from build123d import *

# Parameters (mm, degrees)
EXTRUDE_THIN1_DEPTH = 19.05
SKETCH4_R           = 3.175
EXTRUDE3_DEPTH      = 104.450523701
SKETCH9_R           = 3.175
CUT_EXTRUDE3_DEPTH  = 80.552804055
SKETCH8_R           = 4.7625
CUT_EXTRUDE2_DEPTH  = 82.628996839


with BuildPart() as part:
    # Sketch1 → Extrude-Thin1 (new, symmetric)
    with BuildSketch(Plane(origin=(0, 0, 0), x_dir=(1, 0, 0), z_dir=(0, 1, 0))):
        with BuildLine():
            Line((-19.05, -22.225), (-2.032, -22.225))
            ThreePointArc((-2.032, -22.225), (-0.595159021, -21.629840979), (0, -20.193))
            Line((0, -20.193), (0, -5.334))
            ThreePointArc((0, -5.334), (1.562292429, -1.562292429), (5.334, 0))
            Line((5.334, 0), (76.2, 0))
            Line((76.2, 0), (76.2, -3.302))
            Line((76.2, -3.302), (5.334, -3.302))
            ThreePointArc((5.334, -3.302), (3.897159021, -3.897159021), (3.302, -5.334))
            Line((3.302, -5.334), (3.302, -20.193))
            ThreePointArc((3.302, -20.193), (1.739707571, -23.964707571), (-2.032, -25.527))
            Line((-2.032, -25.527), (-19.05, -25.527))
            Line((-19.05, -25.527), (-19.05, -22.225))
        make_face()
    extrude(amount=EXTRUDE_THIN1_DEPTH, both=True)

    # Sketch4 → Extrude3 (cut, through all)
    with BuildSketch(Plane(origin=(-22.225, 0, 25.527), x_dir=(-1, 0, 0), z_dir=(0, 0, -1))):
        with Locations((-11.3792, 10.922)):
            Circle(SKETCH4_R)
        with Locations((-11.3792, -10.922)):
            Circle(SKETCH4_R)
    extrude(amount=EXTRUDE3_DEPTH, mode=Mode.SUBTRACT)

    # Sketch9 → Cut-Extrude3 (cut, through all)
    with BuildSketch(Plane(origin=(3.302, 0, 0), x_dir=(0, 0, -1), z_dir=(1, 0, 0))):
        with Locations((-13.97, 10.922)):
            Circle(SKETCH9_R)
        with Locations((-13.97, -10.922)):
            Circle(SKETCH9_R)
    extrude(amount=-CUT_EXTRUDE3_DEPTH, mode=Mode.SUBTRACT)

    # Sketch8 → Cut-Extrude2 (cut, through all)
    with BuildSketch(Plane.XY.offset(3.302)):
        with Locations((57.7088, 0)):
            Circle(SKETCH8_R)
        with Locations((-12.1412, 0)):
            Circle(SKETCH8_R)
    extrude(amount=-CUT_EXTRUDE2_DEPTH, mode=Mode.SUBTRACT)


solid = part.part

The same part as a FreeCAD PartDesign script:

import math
import FreeCAD as App
import Part
import Sketcher
Q = App.Units.Quantity

doc = App.newDocument("Part")
body = doc.addObject("PartDesign::Body", "Body")

# Sketch on XZ plane
sketch1 = doc.addObject("Sketcher::SketchObject", "Sketch")
body.addObject(sketch1)
sketch1.AttachmentSupport = (doc.XZ_Plane, [""])
sketch1.MapMode = "FlatFace"
sketch1.addGeometry(Part.LineSegment(App.Vector(-2, 22.2, 0), App.Vector(-19.1, 22.2, 0)), False)
sketch1.addGeometry(Part.LineSegment(App.Vector(-19.1, 22.2, 0), App.Vector(-19.1, 25.5, 0)), False)
sketch1.addGeometry(Part.LineSegment(App.Vector(-19.1, 25.5, 0), App.Vector(-2, 25.5, 0)), False)
sketch1.addGeometry(Part.ArcOfCircle(Part.Circle(App.Vector(-2, 20.2, 0), App.Vector(0, 0, 1), 5.3), math.radians(0), math.radians(90)), False)
sketch1.addGeometry(Part.LineSegment(App.Vector(3.3, 20.2, 0), App.Vector(3.3, 5.3, 0)), False)
sketch1.addGeometry(Part.ArcOfCircle(Part.Circle(App.Vector(5.3, 5.3, 0), App.Vector(0, 0, 1), 2), math.radians(-180), math.radians(-90)), False)
sketch1.addGeometry(Part.LineSegment(App.Vector(5.3, 3.3, 0), App.Vector(76.2, 3.3, 0)), False)
sketch1.addGeometry(Part.LineSegment(App.Vector(76.2, 3.3, 0), App.Vector(76.2, 0, 0)), False)
sketch1.addGeometry(Part.LineSegment(App.Vector(76.2, 0, 0), App.Vector(5.3, 0, 0)), False)
sketch1.addGeometry(Part.ArcOfCircle(Part.Circle(App.Vector(5.3, 5.3, 0), App.Vector(0, 0, 1), 5.3), math.radians(180), math.radians(270)), False)
sketch1.addGeometry(Part.LineSegment(App.Vector(0, 5.3, 0), App.Vector(0, 20.2, 0)), False)
sketch1.addGeometry(Part.ArcOfCircle(Part.Circle(App.Vector(-2, 20.2, 0), App.Vector(0, 0, 1), 2), math.radians(0), math.radians(90)), False)
sketch1.addConstraint(Sketcher.Constraint("Coincident", 0, 2, 1, 1))
sketch1.addConstraint(Sketcher.Constraint("Coincident", 1, 2, 2, 1))
sketch1.addConstraint(Sketcher.Constraint("Tangent", 2, 2, 3, 2))
sketch1.addConstraint(Sketcher.Constraint("Tangent", 3, 1, 4, 1))
sketch1.addConstraint(Sketcher.Constraint("Tangent", 4, 2, 5, 1))
sketch1.addConstraint(Sketcher.Constraint("Tangent", 5, 2, 6, 1))
sketch1.addConstraint(Sketcher.Constraint("Coincident", 6, 2, 7, 1))
sketch1.addConstraint(Sketcher.Constraint("Coincident", 7, 2, 8, 1))
sketch1.addConstraint(Sketcher.Constraint("Tangent", 8, 2, 9, 2))
sketch1.addConstraint(Sketcher.Constraint("Tangent", 9, 1, 10, 1))
sketch1.addConstraint(Sketcher.Constraint("Tangent", 10, 2, 11, 1))
sketch1.addConstraint(Sketcher.Constraint("Tangent", 11, 2, 0, 1))
sketch1.addConstraint(Sketcher.Constraint("Horizontal", 0))
sketch1.addConstraint(Sketcher.Constraint("Vertical", 1))
sketch1.addConstraint(Sketcher.Constraint("Horizontal", 2))
sketch1.addConstraint(Sketcher.Constraint("Vertical", 4))
sketch1.addConstraint(Sketcher.Constraint("Horizontal", 6))
sketch1.addConstraint(Sketcher.Constraint("Vertical", 7))
sketch1.addConstraint(Sketcher.Constraint("Horizontal", 8))
sketch1.addConstraint(Sketcher.Constraint("Vertical", 10))
sketch1.addConstraint(Sketcher.Constraint("Coincident", 9, 3, 5, 3))
sketch1.addConstraint(Sketcher.Constraint("Coincident", 11, 3, 3, 3))
sketch1.addConstraint(Sketcher.Constraint("Equal", 3, 9))
sketch1.addConstraint(Sketcher.Constraint("PointOnObject", 7, 2, -1))
sketch1.addConstraint(Sketcher.Constraint("PointOnObject", 9, 1, -2))
sketch1.addConstraint(Sketcher.Constraint("Radius", 3, Q("0.21 in")))
sketch1.addConstraint(Sketcher.Constraint("Radius", 5, Q("0.08 in")))
sketch1.addConstraint(Sketcher.Constraint("DistanceX", -1, 1, 6, 2, Q("3 in")))
sketch1.addConstraint(Sketcher.Constraint("DistanceX", 0, 2, 0, 1, Q("0.67 in")))
sketch1.addConstraint(Sketcher.Constraint("DistanceY", 4, 2, 4, 1, Q("0.585 in")))
pad1 = doc.addObject("PartDesign::Pad", "Pad")
body.addObject(pad1)
pad1.Profile = sketch1
pad1.Length = Q("1.5 in")
pad1.Midplane = True

# Sketch on XY plane
sketch2 = doc.addObject("Sketcher::SketchObject", "Sketch001")
body.addObject(sketch2)
sketch2.AttachmentSupport = (doc.XY_Plane, [""])
sketch2.MapMode = "FlatFace"
sketch2.AttachmentOffset = App.Placement(App.Vector(0, 0, 1.005 * 25.4), App.Rotation())
sketch2.addGeometry(Part.Circle(App.Vector(-10.8, 10.9, 0), App.Vector(0, 0, 1), 3.2), False)
sketch2.addGeometry(Part.Circle(App.Vector(-10.8, -10.9, 0), App.Vector(0, 0, 1), 3.2), False)
sketch2.addConstraint(Sketcher.Constraint("Equal", 0, 1))
sketch2.addConstraint(Sketcher.Constraint("Symmetric", 0, 3, 1, 3, -1))
sketch2.addConstraint(Sketcher.Constraint("Diameter", 0, Q("0.25 in")))
sketch2.addConstraint(Sketcher.Constraint("DistanceY", -1, 1, 0, 3, Q("0.43 in")))
sketch2.addConstraint(Sketcher.Constraint("DistanceX", 0, 3, -1, 1, Q("0.427 in")))
pocket1 = doc.addObject("PartDesign::Pocket", "Pocket")
body.addObject(pocket1)
pocket1.Profile = sketch2
pocket1.Type = "ThroughAll"

# Sketch on YZ plane
sketch3 = doc.addObject("Sketcher::SketchObject", "Sketch002")
body.addObject(sketch3)
sketch3.AttachmentSupport = (doc.YZ_Plane, [""])
sketch3.MapMode = "FlatFace"
sketch3.AttachmentOffset = App.Placement(App.Vector(0, 0, 0.13 * 25.4), App.Rotation())
sketch3.addGeometry(Part.Circle(App.Vector(10.9, 14, 0), App.Vector(0, 0, 1), 3.2), False)
sketch3.addGeometry(Part.Circle(App.Vector(-10.9, 14, 0), App.Vector(0, 0, 1), 3.2), False)
sketch3.addConstraint(Sketcher.Constraint("Equal", 0, 1))
sketch3.addConstraint(Sketcher.Constraint("Symmetric", 0, 3, 1, 3, -2))
sketch3.addConstraint(Sketcher.Constraint("Diameter", 0, Q("0.25 in")))
sketch3.addConstraint(Sketcher.Constraint("DistanceX", -1, 1, 0, 3, Q("0.43 in")))
sketch3.addConstraint(Sketcher.Constraint("DistanceY", -1, 1, 0, 3, Q("0.55 in")))
pocket2 = doc.addObject("PartDesign::Pocket", "Pocket001")
body.addObject(pocket2)
pocket2.Profile = sketch3
pocket2.Type = "ThroughAll"

# Sketch on XY plane
sketch4 = doc.addObject("Sketcher::SketchObject", "Sketch003")
body.addObject(sketch4)
sketch4.AttachmentSupport = (doc.XY_Plane, [""])
sketch4.MapMode = "FlatFace"
sketch4.AttachmentOffset = App.Placement(App.Vector(0, 0, 0.13 * 25.4), App.Rotation())
sketch4.addGeometry(Part.Circle(App.Vector(57.7, 0, 0), App.Vector(0, 0, 1), 4.8), False)
sketch4.addGeometry(Part.Circle(App.Vector(-12.1, 0, 0), App.Vector(0, 0, 1), 4.8), False)
sketch4.addConstraint(Sketcher.Constraint("Equal", 0, 1))
sketch4.addConstraint(Sketcher.Constraint("PointOnObject", 0, 3, -1))
sketch4.addConstraint(Sketcher.Constraint("PointOnObject", 1, 3, -1))
sketch4.addConstraint(Sketcher.Constraint("Diameter", 0, Q("0.375 in")))
sketch4.addConstraint(Sketcher.Constraint("DistanceX", 1, 3, 0, 3, Q("2.75 in")))
sketch4.addConstraint(Sketcher.Constraint("DistanceX", -1, 1, 0, 3, Q("2.272 in")))
pocket3 = doc.addObject("PartDesign::Pocket", "Pocket002")
body.addObject(pocket3)
pocket3.Profile = sketch4
pocket3.Type = "ThroughAll"

doc.recompute()
